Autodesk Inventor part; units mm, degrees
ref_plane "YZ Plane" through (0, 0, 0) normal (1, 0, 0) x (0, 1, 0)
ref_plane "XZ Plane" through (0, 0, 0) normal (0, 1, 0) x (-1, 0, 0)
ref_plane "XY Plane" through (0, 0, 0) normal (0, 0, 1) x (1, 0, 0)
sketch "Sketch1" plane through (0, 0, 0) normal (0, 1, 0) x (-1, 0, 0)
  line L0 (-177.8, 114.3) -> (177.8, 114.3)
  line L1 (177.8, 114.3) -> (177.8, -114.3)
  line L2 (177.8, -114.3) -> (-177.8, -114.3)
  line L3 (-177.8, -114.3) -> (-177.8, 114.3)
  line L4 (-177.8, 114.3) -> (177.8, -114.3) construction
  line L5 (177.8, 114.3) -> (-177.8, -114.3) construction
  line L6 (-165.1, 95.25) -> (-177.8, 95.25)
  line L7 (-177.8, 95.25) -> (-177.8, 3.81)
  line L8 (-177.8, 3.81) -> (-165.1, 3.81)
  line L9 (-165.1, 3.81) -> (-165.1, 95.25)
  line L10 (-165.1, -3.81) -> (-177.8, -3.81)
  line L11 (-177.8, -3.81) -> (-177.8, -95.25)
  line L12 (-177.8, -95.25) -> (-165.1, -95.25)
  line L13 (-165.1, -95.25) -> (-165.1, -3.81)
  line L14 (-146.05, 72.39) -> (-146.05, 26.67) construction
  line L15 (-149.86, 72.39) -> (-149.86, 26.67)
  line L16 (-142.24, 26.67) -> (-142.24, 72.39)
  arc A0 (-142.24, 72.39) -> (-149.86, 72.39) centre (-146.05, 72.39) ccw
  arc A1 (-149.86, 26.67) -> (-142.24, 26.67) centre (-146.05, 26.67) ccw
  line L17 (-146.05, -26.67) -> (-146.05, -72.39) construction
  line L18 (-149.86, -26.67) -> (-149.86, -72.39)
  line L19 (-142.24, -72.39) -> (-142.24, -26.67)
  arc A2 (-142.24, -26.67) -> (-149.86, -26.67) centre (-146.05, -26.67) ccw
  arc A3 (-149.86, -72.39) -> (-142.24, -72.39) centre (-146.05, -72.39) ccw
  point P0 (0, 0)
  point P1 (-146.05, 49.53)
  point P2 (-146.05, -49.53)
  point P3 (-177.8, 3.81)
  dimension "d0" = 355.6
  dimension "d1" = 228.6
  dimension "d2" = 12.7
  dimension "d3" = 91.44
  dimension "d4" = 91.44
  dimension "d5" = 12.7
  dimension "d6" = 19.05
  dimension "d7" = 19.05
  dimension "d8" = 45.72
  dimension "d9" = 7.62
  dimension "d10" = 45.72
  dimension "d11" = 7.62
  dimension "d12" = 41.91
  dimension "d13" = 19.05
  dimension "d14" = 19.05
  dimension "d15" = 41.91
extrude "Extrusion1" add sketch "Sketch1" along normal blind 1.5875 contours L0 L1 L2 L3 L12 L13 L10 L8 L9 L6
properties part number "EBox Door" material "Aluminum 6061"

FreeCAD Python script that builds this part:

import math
import FreeCAD as App
import Part
import Sketcher
from FreeCAD import Vector
Q = App.Units.Quantity

doc = App.newDocument("Part")
params = doc.addObject("Spreadsheet::Sheet", "Params")
for row, (alias, value) in enumerate([
    ("sketch1_width", "14 in"),
    ("sketch1_height", "9 in"),
    ("sketch1_radius", "0.15 in"),
    ("sketch1_width2", "0.5 in"),
    ("sketch1_height2", "3.6 in"),
    ("pad1_length", "0.0625 in"),
], start=1):
    params.set(f"A{row}", alias)
    params.set(f"B{row}", "=" + value)
    params.setAlias(f"B{row}", alias)

body = doc.addObject("PartDesign::Body", "Body")

sketch1 = body.newObject("Sketcher::SketchObject", "Sketch")
sketch1.AttachmentSupport = (doc.getObject("XZ_Plane"), [""])
sketch1.MapMode = "FlatFace"
sketch1.addGeometry(Part.LineSegment(Vector(-177.8, 114.3, 0), Vector(177.8, 114.3, 0)), False)
sketch1.addGeometry(Part.LineSegment(Vector(177.8, 114.3, 0), Vector(177.8, 95.25, 0)), False)
sketch1.addGeometry(Part.LineSegment(Vector(177.8, 95.25, 0), Vector(165.1, 95.25, 0)), False)
sketch1.addGeometry(Part.LineSegment(Vector(165.1, 95.25, 0), Vector(165.1, 3.81, 0)), False)
sketch1.addGeometry(Part.LineSegment(Vector(165.1, 3.81, 0), Vector(177.8, 3.81, 0)), False)
sketch1.addGeometry(Part.LineSegment(Vector(177.8, 3.81, 0), Vector(177.8, -3.81, 0)), False)
sketch1.addGeometry(Part.LineSegment(Vector(177.8, -3.81, 0), Vector(165.1, -3.81, 0)), False)
sketch1.addGeometry(Part.LineSegment(Vector(165.1, -3.81, 0), Vector(165.1, -95.25, 0)), False)
sketch1.addGeometry(Part.LineSegment(Vector(165.1, -95.25, 0), Vector(177.8, -95.25, 0)), False)
sketch1.addGeometry(Part.LineSegment(Vector(177.8, -95.25, 0), Vector(177.8, -114.3, 0)), False)
sketch1.addGeometry(Part.LineSegment(Vector(177.8, -114.3, 0), Vector(-177.8, -114.3, 0)), False)
sketch1.addGeometry(Part.LineSegment(Vector(-177.8, -114.3, 0), Vector(-177.8, 114.3, 0)), False)
sketch1.addGeometry(Part.LineSegment(Vector(149.86, -72.39, 0), Vector(149.86, -26.67, 0)), False)
sketch1.addGeometry(Part.ArcOfCircle(Part.Circle(Vector(146.05, -26.67, 0), Vector(0, 0, 1), 3.81), math.radians(0), math.radians(180)), False)
sketch1.addGeometry(Part.LineSegment(Vector(142.24, -26.67, 0), Vector(142.24, -72.39, 0)), False)
sketch1.addGeometry(Part.ArcOfCircle(Part.Circle(Vector(146.05, -72.39, 0), Vector(0, 0, 1), 3.81), math.radians(180), math.radians(360)), False)
sketch1.addGeometry(Part.LineSegment(Vector(149.86, 26.67, 0), Vector(149.86, 72.39, 0)), False)
sketch1.addGeometry(Part.ArcOfCircle(Part.Circle(Vector(146.05, 72.39, 0), Vector(0, 0, 1), 3.81), math.radians(0), math.radians(180)), False)
sketch1.addGeometry(Part.LineSegment(Vector(142.24, 72.39, 0), Vector(142.24, 26.67, 0)), False)
sketch1.addGeometry(Part.ArcOfCircle(Part.Circle(Vector(146.05, 26.67, 0), Vector(0, 0, 1), 3.81), math.radians(180), math.radians(360)), False)
sketch1.addConstraint(Sketcher.Constraint("Coincident", 0, 2, 1, 1))
sketch1.addConstraint(Sketcher.Constraint("Coincident", 1, 2, 2, 1))
sketch1.addConstraint(Sketcher.Constraint("Coincident", 2, 2, 3, 1))
sketch1.addConstraint(Sketcher.Constraint("Coincident", 3, 2, 4, 1))
sketch1.addConstraint(Sketcher.Constraint("Coincident", 4, 2, 5, 1))
sketch1.addConstraint(Sketcher.Constraint("Coincident", 5, 2, 6, 1))
sketch1.addConstraint(Sketcher.Constraint("Coincident", 6, 2, 7, 1))
sketch1.addConstraint(Sketcher.Constraint("Coincident", 7, 2, 8, 1))
sketch1.addConstraint(Sketcher.Constraint("Coincident", 8, 2, 9, 1))
sketch1.addConstraint(Sketcher.Constraint("Coincident", 9, 2, 10, 1))
sketch1.addConstraint(Sketcher.Constraint("Coincident", 10, 2, 11, 1))
sketch1.addConstraint(Sketcher.Constraint("Coincident", 11, 2, 0, 1))
sketch1.addConstraint(Sketcher.Constraint("Tangent", 12, 2, 13, 1))
sketch1.addConstraint(Sketcher.Constraint("Tangent", 13, 2, 14, 1))
sketch1.addConstraint(Sketcher.Constraint("Tangent", 14, 2, 15, 1))
sketch1.addConstraint(Sketcher.Constraint("Tangent", 15, 2, 12, 1))
sketch1.addConstraint(Sketcher.Constraint("Tangent", 16, 2, 17, 1))
sketch1.addConstraint(Sketcher.Constraint("Tangent", 17, 2, 18, 1))
sketch1.addConstraint(Sketcher.Constraint("Tangent", 18, 2, 19, 1))
sketch1.addConstraint(Sketcher.Constraint("Tangent", 19, 2, 16, 1))
sketch1.addConstraint(Sketcher.Constraint("Horizontal", 0))
sketch1.addConstraint(Sketcher.Constraint("Vertical", 1))
sketch1.addConstraint(Sketcher.Constraint("Horizontal", 2))
sketch1.addConstraint(Sketcher.Constraint("Vertical", 3))
sketch1.addConstraint(Sketcher.Constraint("Horizontal", 4))
sketch1.addConstraint(Sketcher.Constraint("Vertical", 5))
sketch1.addConstraint(Sketcher.Constraint("Horizontal", 6))
sketch1.addConstraint(Sketcher.Constraint("Vertical", 7))
sketch1.addConstraint(Sketcher.Constraint("Horizontal", 8))
sketch1.addConstraint(Sketcher.Constraint("Vertical", 9))
sketch1.addConstraint(Sketcher.Constraint("Horizontal", 10))
sketch1.addConstraint(Sketcher.Constraint("Vertical", 11))
sketch1.addConstraint(Sketcher.Constraint("Vertical", 12))
sketch1.addConstraint(Sketcher.Constraint("Vertical", 14))
sketch1.addConstraint(Sketcher.Constraint("Vertical", 16))
sketch1.addConstraint(Sketcher.Constraint("Vertical", 18))
sketch1.addConstraint(Sketcher.Constraint("Equal", 15, 17))
sketch1.addConstraint(Sketcher.Constraint("Symmetric", 0, 2, 10, 2, -1, 1))
sketch1.addConstraint(Sketcher.Constraint("Symmetric", 15, 3, 17, 3, -1))
sketch1.addConstraint(Sketcher.Constraint("Symmetric", 3, 2, 6, 2, -1))
sketch1.addConstraint(Sketcher.Constraint("Symmetric", 1, 2, 8, 2, -1))
sketch1.addConstraint(Sketcher.Constraint("Vertical", 1, 2, 4, 2))
sketch1.addConstraint(Sketcher.Constraint("Equal", 14, 16))
sketch1.addConstraint(Sketcher.Constraint("DistanceX", 0, 1, 0, 2, Q("14 in")))
sketch1.addConstraint(Sketcher.Constraint("DistanceY", 11, 1, 11, 2, Q("9 in")))
sketch1.addConstraint(Sketcher.Constraint("Radius", 13, Q("0.15 in")))
sketch1.addConstraint(Sketcher.Constraint("DistanceX", 2, 2, 2, 1, Q("0.5 in")))
sketch1.addConstraint(Sketcher.Constraint("DistanceY", 3, 2, 3, 1, Q("3.6 in")))
sketch1.addConstraint(Sketcher.Constraint("DistanceY", 5, 2, 5, 1, Q("0.3 in")))
sketch1.addConstraint(Sketcher.Constraint("DistanceY", 12, 1, 12, 2, Q("1.8 in")))
sketch1.addConstraint(Sketcher.Constraint("DistanceY", 17, 3, 0, 2, Q("1.65 in")))
sketch1.addConstraint(Sketcher.Constraint("DistanceX", 17, 3, 2, 2, Q("0.75 in")))
sketch1.setExpression("Constraints[43]", "Params.sketch1_width")
sketch1.setExpression("Constraints[44]", "Params.sketch1_height")
sketch1.setExpression("Constraints[45]", "Params.sketch1_radius")
sketch1.setExpression("Constraints[46]", "Params.sketch1_width2")
sketch1.setExpression("Constraints[47]", "Params.sketch1_height2")
pad1 = body.newObject("PartDesign::Pad", "Pad")
pad1.Profile = sketch1
pad1.setExpression("Length", "Params.pad1_length")
pad1.Reversed = True

doc.recompute()
